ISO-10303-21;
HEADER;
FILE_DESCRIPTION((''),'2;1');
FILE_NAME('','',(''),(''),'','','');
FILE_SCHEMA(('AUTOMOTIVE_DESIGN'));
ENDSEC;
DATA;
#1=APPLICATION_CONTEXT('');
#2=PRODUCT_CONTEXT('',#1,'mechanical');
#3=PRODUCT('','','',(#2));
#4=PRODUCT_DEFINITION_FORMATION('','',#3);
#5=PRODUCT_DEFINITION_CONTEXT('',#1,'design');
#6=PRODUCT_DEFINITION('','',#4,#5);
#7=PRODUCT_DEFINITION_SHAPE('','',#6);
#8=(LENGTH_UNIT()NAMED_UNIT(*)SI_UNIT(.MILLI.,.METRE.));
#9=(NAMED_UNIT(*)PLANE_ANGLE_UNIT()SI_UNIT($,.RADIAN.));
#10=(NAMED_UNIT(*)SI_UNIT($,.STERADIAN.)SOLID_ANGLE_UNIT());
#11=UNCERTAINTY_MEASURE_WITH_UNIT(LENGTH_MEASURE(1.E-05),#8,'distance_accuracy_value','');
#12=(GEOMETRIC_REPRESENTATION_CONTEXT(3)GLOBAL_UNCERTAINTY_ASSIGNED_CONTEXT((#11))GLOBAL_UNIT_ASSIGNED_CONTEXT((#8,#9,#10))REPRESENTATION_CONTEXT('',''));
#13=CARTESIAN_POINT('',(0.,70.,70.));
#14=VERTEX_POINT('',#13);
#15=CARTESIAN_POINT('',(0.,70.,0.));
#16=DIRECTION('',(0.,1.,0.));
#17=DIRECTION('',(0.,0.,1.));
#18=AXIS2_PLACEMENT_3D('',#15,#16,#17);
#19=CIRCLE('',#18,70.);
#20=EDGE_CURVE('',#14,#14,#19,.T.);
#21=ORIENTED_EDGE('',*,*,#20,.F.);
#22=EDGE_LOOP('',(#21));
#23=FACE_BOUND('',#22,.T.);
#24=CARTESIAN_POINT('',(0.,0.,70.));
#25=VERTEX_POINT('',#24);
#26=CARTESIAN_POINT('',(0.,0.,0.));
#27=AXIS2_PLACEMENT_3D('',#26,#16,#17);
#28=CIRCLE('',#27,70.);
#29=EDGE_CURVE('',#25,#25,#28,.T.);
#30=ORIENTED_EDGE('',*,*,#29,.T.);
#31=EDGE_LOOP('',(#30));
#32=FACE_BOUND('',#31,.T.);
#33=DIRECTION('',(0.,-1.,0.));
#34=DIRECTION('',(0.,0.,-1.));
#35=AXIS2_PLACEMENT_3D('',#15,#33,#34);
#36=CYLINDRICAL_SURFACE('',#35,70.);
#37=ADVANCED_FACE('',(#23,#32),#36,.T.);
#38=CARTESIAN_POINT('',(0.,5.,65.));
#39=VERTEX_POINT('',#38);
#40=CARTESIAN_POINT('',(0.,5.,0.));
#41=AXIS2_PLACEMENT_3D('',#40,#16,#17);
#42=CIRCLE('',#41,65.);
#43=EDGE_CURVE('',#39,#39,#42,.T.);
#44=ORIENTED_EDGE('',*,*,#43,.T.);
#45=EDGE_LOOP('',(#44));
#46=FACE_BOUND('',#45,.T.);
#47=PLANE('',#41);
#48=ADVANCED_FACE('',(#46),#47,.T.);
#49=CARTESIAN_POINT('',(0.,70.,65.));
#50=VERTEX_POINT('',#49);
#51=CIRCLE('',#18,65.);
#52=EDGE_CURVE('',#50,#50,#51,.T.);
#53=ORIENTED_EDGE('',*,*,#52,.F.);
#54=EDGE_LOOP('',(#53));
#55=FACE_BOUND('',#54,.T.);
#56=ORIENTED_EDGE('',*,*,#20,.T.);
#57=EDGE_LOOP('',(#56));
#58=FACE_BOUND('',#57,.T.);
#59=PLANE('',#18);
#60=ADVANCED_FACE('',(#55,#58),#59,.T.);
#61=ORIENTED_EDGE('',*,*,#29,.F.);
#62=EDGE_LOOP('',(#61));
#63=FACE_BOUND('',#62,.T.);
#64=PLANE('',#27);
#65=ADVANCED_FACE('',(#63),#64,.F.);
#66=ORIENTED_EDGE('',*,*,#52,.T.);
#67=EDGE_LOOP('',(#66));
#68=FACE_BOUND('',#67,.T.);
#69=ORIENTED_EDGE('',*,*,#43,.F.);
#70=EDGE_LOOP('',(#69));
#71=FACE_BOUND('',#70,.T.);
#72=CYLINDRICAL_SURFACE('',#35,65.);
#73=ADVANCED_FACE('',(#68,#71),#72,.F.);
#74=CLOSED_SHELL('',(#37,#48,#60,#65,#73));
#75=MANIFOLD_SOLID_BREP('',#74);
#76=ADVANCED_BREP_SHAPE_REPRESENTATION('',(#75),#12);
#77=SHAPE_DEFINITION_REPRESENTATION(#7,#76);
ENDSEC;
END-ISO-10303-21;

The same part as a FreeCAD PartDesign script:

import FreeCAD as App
import Part
import Sketcher
from FreeCAD import Vector
Q = App.Units.Quantity


def faces_at(feature, points):
    """Names of the faces that lie closest to the given points."""
    faces = feature.Shape.Faces
    near = lambda p: min(range(len(faces)), key=lambda i: faces[i].distToShape(Part.Vertex(*p))[0])
    return sorted({f"Face{near(p) + 1}" for p in points})

doc = App.newDocument("Part")
body = doc.addObject("PartDesign::Body", "Body")

# Sketch on XZ plane
sketch1 = doc.addObject("Sketcher::SketchObject", "Sketch")
body.addObject(sketch1)
sketch1.AttachmentSupport = (doc.XZ_Plane, [""])
sketch1.MapMode = "FlatFace"
sketch1.addGeometry(Part.Circle(Vector(0, 0, 0), Vector(0, 0, 1), 70), False)
sketch1.addConstraint([
    Sketcher.Constraint("Coincident", 0, 3, -1, 1),
    Sketcher.Constraint("Diameter", 0, Q("140 mm")),
])
pad1 = doc.addObject("PartDesign::Pad", "Pad")
body.addObject(pad1)
pad1.Profile = sketch1
pad1.Length = 70
pad1.Reversed = True
doc.recompute()

thickness = doc.addObject("PartDesign::Thickness", "Thickness")
body.addObject(thickness)
thickness.Base = (pad1, faces_at(pad1, [(0, 70, 0)]))
thickness.Value = 5
thickness.Reversed = True
thickness.Join = "Intersection"

doc.recompute()
